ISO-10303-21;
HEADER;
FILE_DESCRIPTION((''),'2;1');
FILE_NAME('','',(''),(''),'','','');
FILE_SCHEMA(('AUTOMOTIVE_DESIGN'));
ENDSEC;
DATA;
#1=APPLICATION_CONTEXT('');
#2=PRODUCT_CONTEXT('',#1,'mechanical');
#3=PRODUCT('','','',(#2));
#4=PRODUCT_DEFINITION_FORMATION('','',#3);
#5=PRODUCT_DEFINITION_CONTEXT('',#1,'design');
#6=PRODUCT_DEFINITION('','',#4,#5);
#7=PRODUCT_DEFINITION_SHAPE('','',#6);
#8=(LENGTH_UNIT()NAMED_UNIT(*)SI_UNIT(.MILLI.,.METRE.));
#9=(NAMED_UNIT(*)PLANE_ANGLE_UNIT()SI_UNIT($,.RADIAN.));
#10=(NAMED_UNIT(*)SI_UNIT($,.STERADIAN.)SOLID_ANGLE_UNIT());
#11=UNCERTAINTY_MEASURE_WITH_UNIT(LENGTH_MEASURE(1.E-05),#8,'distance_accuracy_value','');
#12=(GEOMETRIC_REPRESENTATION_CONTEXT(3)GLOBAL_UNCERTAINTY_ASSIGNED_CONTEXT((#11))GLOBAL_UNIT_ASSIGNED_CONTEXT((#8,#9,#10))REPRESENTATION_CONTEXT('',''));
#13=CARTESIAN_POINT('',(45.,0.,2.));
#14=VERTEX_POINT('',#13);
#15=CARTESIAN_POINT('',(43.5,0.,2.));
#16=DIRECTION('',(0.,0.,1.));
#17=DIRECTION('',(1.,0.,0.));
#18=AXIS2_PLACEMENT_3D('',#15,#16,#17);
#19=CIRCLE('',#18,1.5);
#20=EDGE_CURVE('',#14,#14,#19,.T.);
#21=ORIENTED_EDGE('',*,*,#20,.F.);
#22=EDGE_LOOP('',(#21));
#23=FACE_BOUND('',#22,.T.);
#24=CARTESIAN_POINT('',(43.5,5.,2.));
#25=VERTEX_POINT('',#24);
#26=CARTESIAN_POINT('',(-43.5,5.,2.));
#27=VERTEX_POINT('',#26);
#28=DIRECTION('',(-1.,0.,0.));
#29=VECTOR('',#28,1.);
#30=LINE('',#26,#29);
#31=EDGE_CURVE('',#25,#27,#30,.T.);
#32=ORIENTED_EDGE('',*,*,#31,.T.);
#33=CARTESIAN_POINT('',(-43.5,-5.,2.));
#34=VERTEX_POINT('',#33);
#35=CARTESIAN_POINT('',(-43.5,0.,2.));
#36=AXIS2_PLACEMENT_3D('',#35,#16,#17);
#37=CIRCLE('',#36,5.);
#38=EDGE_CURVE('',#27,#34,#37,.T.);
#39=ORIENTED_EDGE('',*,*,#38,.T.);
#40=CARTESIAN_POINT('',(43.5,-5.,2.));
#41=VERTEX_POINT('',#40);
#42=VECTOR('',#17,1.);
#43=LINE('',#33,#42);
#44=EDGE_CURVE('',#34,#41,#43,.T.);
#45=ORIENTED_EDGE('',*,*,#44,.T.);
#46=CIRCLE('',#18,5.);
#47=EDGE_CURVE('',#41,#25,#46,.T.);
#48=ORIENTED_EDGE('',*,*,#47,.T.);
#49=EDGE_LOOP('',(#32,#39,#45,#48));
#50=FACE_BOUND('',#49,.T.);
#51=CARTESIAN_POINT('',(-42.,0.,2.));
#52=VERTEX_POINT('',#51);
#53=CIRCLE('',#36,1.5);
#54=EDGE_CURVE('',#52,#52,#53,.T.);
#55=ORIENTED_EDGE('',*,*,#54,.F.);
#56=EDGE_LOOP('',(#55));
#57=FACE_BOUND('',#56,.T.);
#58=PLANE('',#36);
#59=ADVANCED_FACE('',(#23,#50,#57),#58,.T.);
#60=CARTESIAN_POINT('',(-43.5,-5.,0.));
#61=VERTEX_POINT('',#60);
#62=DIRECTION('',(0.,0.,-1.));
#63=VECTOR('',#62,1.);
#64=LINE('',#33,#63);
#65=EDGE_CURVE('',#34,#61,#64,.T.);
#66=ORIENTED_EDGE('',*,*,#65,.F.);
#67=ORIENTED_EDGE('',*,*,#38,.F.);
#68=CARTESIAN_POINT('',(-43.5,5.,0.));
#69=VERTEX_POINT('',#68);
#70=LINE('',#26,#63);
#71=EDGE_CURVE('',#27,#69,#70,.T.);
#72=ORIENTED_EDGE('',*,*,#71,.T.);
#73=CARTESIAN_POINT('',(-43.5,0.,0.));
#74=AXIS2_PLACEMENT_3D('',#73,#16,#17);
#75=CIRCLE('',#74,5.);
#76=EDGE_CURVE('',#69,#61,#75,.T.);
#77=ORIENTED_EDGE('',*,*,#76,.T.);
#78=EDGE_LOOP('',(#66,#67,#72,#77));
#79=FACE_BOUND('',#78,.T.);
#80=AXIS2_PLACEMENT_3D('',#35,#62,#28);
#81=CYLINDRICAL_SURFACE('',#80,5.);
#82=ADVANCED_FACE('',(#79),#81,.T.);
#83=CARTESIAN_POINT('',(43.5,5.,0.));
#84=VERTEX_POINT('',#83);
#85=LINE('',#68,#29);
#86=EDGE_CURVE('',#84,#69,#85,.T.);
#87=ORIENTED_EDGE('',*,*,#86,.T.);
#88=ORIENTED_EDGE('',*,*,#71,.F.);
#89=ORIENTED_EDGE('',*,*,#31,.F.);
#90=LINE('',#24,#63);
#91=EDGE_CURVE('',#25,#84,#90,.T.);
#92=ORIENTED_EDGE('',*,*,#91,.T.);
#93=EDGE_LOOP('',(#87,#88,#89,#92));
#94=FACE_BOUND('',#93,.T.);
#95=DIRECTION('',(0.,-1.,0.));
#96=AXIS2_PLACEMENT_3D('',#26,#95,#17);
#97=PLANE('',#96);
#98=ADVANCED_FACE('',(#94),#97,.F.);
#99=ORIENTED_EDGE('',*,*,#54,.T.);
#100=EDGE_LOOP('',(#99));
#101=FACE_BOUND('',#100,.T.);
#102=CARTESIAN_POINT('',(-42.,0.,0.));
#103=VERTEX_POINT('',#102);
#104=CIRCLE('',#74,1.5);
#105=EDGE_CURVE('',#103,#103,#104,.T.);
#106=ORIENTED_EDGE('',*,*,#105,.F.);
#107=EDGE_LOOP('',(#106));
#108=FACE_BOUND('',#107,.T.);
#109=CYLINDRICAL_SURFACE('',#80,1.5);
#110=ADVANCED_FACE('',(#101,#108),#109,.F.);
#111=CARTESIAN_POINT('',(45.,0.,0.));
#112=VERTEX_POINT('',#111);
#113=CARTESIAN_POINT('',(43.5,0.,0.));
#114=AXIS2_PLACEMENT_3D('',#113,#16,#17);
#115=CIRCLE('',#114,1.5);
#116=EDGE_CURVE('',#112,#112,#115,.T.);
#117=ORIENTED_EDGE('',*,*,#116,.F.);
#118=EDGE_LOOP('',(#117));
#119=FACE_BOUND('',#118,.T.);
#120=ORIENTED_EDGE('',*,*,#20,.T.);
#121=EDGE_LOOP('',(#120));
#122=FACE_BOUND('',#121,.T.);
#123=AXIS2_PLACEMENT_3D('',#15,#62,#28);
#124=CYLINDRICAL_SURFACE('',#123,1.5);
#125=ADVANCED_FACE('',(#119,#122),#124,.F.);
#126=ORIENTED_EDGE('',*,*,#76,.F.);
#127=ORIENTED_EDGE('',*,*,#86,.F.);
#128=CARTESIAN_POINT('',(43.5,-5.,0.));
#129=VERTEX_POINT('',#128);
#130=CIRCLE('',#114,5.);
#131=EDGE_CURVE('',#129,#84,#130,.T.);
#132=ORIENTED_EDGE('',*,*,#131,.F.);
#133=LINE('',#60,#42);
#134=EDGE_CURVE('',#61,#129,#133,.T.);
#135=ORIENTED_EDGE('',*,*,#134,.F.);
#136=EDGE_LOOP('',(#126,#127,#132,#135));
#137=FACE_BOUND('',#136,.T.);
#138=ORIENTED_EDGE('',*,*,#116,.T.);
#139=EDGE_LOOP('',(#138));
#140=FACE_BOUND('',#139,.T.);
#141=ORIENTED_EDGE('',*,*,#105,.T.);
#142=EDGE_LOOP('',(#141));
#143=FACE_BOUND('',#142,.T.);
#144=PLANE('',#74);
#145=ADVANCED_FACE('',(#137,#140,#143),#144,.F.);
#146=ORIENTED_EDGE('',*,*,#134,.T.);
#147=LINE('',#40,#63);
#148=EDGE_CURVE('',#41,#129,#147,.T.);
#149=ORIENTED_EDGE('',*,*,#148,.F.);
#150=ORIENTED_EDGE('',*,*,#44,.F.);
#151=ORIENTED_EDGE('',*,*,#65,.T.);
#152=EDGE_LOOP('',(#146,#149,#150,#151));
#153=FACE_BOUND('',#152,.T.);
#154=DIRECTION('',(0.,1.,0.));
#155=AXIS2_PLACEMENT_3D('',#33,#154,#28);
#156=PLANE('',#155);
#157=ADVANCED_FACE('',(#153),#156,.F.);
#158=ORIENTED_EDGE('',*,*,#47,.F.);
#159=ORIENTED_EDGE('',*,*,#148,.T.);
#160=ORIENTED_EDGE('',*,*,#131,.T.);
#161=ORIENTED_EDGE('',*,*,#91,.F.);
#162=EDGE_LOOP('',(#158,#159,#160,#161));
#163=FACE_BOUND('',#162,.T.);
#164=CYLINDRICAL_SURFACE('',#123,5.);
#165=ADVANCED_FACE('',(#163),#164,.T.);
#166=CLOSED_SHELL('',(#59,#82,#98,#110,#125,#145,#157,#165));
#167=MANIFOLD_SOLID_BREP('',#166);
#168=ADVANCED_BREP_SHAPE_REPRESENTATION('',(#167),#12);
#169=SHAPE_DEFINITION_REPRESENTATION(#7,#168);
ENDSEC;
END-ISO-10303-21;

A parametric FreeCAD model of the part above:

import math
import FreeCAD as App
import Part
import Sketcher
from FreeCAD import Vector
Q = App.Units.Quantity

doc = App.newDocument("Part")
params = doc.addObject("Spreadsheet::Sheet", "Params")
for row, (alias, value) in enumerate([
    ("sketch1_diameter", "3 mm"),
    ("sketch1_radius", "5 mm"),
    ("sketch1_width", "87 mm"),
    ("pad1_length", "2 mm"),
], start=1):
    params.set(f"A{row}", alias)
    params.set(f"B{row}", "=" + value)
    params.setAlias(f"B{row}", alias)

body = doc.addObject("PartDesign::Body", "Body")

# Sketch on XY plane
sketch1 = body.newObject("Sketcher::SketchObject", "Sketch")
sketch1.AttachmentSupport = (doc.getObject("XY_Plane"), [""])
sketch1.MapMode = "FlatFace"
sketch1.addGeometry([
    Part.LineSegment(Vector(43.5, 5, 0), Vector(-43.5, 5, 0)),  # 0
    Part.ArcOfCircle(Part.Circle(Vector(-43.5, 0, 0), Vector(0, 0, 1), 5), math.radians(90), math.radians(270)),  # 1
    Part.LineSegment(Vector(-43.5, -5, 0), Vector(43.5, -5, 0)),  # 2
    Part.ArcOfCircle(Part.Circle(Vector(43.5, 0, 0), Vector(0, 0, 1), 5), math.radians(-90), math.radians(90)),  # 3
    Part.Circle(Vector(43.5, 0, 0), Vector(0, 0, 1), 1.5),  # 4
    Part.Circle(Vector(-43.5, 0, 0), Vector(0, 0, 1), 1.5),  # 5
], False)
sketch1.addConstraint([
    Sketcher.Constraint("Tangent", 0, 2, 1, 1),
    Sketcher.Constraint("Tangent", 1, 2, 2, 1),
    Sketcher.Constraint("Tangent", 2, 2, 3, 1),
    Sketcher.Constraint("Tangent", 3, 2, 0, 1),
    Sketcher.Constraint("Horizontal", 0),
    Sketcher.Constraint("Horizontal", 2),
    Sketcher.Constraint("Coincident", 4, 3, 3, 3),
    Sketcher.Constraint("Coincident", 5, 3, 1, 3),
    Sketcher.Constraint("Equal", 4, 5),
    Sketcher.Constraint("Symmetric", 1, 3, 3, 3, -1, 1),
    Sketcher.Constraint("Diameter", 4, Q("3 mm")),
    Sketcher.Constraint("Radius", 1, Q("5 mm")),
    Sketcher.Constraint("DistanceX", 0, 2, 0, 1, Q("87 mm")),
])
sketch1.setExpression("Constraints[10]", "Params.sketch1_diameter")
sketch1.setExpression("Constraints[11]", "Params.sketch1_radius")
sketch1.setExpression("Constraints[12]", "Params.sketch1_width")
pad1 = body.newObject("PartDesign::Pad", "Pad")
pad1.Profile = sketch1
pad1.setExpression("Length", "Params.pad1_length")

doc.recompute()
